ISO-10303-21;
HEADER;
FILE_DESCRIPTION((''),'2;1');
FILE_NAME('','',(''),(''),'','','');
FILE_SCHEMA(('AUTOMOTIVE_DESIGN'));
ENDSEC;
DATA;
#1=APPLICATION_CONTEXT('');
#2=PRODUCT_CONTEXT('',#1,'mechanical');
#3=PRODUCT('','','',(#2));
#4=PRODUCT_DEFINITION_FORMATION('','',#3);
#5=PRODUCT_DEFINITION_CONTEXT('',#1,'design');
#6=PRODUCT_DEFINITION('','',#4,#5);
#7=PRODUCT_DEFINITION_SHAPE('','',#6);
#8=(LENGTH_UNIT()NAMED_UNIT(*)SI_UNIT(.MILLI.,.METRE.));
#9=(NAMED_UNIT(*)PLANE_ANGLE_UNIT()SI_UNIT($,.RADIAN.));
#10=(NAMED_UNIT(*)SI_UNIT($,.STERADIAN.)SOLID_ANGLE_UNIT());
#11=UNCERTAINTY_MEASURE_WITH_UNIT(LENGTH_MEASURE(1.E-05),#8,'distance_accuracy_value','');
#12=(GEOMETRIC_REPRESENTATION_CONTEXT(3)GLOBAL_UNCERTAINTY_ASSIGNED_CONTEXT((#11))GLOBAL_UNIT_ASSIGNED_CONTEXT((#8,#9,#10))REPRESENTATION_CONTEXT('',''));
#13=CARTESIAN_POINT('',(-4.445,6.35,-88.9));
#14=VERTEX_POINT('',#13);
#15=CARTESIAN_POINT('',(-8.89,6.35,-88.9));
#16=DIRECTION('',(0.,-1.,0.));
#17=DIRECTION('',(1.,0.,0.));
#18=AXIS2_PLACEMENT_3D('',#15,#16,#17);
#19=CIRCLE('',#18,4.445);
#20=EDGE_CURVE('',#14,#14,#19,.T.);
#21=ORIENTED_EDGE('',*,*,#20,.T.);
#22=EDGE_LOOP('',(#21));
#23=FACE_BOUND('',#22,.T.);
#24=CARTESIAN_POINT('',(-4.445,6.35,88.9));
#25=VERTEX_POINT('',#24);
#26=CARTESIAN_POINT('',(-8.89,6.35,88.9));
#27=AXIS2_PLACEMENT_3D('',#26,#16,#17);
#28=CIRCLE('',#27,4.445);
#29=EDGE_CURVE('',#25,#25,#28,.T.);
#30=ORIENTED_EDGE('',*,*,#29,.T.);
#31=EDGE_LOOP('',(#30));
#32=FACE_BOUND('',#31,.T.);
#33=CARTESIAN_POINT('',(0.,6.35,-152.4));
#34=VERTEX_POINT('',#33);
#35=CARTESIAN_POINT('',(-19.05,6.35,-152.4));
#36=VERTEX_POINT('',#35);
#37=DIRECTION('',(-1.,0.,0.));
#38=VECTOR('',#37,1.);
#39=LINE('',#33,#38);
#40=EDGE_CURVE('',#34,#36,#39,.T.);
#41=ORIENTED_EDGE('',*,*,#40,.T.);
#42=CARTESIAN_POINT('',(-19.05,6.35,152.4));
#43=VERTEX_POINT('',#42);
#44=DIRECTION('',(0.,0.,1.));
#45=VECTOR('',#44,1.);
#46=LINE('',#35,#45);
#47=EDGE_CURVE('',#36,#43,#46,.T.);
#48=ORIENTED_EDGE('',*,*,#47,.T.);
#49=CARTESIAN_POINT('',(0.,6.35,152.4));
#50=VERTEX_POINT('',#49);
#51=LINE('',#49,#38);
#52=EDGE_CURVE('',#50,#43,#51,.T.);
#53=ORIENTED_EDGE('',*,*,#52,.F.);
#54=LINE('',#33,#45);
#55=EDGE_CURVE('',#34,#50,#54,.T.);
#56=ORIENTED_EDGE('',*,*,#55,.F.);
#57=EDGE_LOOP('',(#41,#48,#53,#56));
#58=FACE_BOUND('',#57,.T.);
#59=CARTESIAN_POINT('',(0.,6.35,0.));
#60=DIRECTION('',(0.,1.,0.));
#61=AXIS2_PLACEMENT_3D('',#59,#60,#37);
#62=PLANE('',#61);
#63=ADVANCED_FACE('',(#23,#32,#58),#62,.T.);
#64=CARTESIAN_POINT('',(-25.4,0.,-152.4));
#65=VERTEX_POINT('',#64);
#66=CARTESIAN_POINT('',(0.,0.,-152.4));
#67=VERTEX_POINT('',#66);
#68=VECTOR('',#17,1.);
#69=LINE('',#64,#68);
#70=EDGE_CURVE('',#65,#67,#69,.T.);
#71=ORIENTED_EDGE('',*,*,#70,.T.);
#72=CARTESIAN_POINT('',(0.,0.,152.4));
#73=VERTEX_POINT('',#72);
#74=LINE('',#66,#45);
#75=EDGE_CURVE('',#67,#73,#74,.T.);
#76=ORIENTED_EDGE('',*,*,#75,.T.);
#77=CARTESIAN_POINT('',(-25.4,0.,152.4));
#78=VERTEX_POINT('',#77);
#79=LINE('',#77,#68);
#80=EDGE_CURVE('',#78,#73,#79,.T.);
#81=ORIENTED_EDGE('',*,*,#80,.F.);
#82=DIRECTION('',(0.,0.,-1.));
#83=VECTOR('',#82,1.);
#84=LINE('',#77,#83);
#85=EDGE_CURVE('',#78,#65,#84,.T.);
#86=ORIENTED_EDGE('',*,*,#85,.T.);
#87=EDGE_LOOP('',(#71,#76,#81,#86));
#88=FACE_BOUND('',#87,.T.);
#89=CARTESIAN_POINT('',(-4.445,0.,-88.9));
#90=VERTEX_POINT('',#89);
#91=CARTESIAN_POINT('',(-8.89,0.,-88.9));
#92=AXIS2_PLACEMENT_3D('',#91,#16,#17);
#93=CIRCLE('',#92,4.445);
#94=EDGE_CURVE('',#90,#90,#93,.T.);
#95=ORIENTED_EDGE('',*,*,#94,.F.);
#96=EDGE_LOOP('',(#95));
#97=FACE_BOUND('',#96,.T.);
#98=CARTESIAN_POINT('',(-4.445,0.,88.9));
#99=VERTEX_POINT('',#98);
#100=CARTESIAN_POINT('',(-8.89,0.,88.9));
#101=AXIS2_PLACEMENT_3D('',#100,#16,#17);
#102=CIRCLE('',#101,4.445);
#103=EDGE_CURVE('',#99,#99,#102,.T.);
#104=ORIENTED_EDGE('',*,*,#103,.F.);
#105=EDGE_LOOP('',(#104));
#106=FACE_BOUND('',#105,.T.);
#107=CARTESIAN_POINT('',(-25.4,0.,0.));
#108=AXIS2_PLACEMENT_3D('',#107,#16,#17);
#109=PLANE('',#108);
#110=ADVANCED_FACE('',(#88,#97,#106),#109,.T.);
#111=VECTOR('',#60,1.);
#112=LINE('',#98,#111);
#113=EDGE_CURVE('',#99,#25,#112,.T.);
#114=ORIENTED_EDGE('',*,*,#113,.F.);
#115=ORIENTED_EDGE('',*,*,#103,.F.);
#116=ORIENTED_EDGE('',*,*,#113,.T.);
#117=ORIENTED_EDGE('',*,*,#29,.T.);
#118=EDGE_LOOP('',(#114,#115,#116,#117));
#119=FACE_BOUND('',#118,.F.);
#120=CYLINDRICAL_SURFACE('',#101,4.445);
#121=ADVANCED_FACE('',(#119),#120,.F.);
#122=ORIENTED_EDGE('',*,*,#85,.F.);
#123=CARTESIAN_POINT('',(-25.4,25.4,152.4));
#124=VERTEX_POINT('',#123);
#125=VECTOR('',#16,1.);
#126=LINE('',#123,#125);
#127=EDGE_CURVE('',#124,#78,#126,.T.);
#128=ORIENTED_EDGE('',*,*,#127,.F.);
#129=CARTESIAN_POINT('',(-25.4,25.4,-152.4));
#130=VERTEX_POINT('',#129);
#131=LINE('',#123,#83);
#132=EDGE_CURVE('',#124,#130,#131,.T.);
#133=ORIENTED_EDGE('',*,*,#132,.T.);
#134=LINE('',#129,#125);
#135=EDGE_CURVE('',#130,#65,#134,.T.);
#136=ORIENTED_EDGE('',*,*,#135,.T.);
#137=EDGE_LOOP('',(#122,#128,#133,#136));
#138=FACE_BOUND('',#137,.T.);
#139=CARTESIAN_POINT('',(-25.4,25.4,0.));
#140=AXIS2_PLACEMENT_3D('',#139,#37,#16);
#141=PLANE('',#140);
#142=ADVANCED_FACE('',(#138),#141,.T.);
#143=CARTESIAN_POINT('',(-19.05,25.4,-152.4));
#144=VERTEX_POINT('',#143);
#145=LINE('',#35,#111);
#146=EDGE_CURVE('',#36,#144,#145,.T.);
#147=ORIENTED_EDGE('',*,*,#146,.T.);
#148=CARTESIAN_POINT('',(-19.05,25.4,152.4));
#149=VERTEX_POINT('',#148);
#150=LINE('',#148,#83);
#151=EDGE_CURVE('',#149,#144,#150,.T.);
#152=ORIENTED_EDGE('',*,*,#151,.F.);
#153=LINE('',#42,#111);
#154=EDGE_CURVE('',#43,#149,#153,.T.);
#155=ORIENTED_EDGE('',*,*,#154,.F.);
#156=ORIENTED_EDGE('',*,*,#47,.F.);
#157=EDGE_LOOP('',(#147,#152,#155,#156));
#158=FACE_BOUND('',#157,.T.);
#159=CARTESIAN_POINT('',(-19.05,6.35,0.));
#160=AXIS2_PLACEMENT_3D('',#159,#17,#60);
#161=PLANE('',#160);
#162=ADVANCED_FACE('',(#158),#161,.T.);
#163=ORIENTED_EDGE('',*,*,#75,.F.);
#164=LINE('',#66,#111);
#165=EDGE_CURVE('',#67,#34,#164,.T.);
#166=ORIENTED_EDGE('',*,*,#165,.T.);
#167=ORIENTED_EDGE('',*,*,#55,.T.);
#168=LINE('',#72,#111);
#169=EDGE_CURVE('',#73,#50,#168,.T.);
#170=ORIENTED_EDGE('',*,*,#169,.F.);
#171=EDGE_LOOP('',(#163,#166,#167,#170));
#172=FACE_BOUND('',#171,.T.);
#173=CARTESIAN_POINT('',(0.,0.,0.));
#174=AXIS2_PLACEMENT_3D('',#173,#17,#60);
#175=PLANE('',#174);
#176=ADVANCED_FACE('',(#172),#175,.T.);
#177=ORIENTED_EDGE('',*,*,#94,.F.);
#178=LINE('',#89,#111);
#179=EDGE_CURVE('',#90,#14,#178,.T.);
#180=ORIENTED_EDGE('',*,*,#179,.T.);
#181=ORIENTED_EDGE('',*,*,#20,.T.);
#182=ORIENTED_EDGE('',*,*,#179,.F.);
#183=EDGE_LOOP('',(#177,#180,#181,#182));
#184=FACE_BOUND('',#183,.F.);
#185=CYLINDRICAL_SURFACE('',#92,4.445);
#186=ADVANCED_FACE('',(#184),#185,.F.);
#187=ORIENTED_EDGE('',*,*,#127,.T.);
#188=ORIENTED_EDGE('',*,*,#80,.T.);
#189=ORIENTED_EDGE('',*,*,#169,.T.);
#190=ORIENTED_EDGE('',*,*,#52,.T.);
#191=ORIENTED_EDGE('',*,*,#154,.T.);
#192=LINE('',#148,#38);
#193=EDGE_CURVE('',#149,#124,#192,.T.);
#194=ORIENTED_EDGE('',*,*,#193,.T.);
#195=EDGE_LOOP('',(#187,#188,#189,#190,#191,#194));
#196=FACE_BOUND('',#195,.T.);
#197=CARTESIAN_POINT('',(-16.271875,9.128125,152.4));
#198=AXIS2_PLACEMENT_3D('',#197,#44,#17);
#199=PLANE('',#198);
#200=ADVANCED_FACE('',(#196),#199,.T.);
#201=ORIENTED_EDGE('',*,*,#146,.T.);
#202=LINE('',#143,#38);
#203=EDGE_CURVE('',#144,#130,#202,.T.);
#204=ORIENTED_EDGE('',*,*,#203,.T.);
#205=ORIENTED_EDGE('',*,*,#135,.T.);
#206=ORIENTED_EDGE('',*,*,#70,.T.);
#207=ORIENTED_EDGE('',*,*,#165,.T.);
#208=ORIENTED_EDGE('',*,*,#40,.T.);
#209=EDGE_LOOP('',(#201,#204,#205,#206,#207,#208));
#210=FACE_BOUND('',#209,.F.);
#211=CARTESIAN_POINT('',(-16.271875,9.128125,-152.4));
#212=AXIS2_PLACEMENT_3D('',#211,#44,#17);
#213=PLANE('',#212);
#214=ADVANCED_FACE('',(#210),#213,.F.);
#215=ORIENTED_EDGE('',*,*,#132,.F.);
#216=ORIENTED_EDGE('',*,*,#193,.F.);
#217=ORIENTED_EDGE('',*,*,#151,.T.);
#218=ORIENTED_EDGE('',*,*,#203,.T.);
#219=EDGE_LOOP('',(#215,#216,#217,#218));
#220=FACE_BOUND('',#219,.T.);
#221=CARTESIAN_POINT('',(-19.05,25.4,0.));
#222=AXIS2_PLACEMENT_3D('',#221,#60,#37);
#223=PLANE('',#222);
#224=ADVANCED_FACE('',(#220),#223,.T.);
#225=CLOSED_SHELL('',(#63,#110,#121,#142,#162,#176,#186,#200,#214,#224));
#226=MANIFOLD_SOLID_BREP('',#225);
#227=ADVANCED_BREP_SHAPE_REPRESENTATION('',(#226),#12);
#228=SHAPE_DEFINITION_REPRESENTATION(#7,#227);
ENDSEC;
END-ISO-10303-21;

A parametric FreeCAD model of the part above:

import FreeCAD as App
import Part
import Sketcher
from FreeCAD import Vector
Q = App.Units.Quantity


def add_polygon(sketch, points):
    """Adds a closed chain of lines whose ends are joined by coincident constraints."""
    first, n = sketch.GeometryCount, len(points)
    for a, b in zip(points, points[1:] + points[:1]):
        sketch.addGeometry(Part.LineSegment(App.Vector(*a, 0), App.Vector(*b, 0)), False)
    for i in range(n):
        sketch.addConstraint(Sketcher.Constraint("Coincident", first + i, 2, first + (i + 1) % n, 1))

doc = App.newDocument("Part")
body = doc.addObject("PartDesign::Body", "Body")

sketch1 = body.newObject("Sketcher::SketchObject", "Sketch")
sketch1.AttachmentSupport = (doc.getObject("XY_Plane"), [""])
sketch1.MapMode = "FlatFace"
add_polygon(sketch1, [(-25, 0), (0, 0), (0, 6), (-19, 6), (-19, 25), (-25, 25)])
sketch1.addConstraint([
    Sketcher.Constraint("Horizontal", 0),
    Sketcher.Constraint("Vertical", 1),
    Sketcher.Constraint("Horizontal", 2),
    Sketcher.Constraint("Vertical", 3),
    Sketcher.Constraint("Horizontal", 4),
    Sketcher.Constraint("Vertical", 5),
    Sketcher.Constraint("Coincident", 0, 2, -1, 1),
    Sketcher.Constraint("Equal", 4, 1),
    Sketcher.Constraint("Equal", 2, 3),
    Sketcher.Constraint("DistanceX", 0, 1, 0, 2, Q("1 in")),
    Sketcher.Constraint("DistanceX", 2, 2, 2, 1, Q("0.75 in")),
])
pad1 = body.newObject("PartDesign::Pad", "Pad")
pad1.Profile = sketch1
pad1.Length = Q("12 in")
pad1.Midplane = True

sketch2 = body.newObject("Sketcher::SketchObject", "Sketch001")
sketch2.AttachmentSupport = (doc.getObject("XZ_Plane"), [""])
sketch2.MapMode = "FlatFace"
sketch2.addGeometry([
    Part.Circle(Vector(-8.9, 88.9, 0), Vector(0, 0, 1), 4.4),
    Part.Circle(Vector(-8.9, -88.9, 0), Vector(0, 0, 1), 4.4),
], False)
sketch2.addConstraint([
    Sketcher.Constraint("Equal", 0, 1),
    Sketcher.Constraint("Symmetric", 0, 3, 1, 3, -1),
    Sketcher.Constraint("Diameter", 0, Q("0.35 in")),
    Sketcher.Constraint("DistanceY", 1, 3, 0, 3, Q("7 in")),
    Sketcher.Constraint("DistanceX", 0, 3, -1, 1, Q("0.35 in")),
])
pocket1 = body.newObject("PartDesign::Pocket", "Pocket")
pocket1.Profile = sketch2
pocket1.Length = Q("1 in")

doc.recompute()
